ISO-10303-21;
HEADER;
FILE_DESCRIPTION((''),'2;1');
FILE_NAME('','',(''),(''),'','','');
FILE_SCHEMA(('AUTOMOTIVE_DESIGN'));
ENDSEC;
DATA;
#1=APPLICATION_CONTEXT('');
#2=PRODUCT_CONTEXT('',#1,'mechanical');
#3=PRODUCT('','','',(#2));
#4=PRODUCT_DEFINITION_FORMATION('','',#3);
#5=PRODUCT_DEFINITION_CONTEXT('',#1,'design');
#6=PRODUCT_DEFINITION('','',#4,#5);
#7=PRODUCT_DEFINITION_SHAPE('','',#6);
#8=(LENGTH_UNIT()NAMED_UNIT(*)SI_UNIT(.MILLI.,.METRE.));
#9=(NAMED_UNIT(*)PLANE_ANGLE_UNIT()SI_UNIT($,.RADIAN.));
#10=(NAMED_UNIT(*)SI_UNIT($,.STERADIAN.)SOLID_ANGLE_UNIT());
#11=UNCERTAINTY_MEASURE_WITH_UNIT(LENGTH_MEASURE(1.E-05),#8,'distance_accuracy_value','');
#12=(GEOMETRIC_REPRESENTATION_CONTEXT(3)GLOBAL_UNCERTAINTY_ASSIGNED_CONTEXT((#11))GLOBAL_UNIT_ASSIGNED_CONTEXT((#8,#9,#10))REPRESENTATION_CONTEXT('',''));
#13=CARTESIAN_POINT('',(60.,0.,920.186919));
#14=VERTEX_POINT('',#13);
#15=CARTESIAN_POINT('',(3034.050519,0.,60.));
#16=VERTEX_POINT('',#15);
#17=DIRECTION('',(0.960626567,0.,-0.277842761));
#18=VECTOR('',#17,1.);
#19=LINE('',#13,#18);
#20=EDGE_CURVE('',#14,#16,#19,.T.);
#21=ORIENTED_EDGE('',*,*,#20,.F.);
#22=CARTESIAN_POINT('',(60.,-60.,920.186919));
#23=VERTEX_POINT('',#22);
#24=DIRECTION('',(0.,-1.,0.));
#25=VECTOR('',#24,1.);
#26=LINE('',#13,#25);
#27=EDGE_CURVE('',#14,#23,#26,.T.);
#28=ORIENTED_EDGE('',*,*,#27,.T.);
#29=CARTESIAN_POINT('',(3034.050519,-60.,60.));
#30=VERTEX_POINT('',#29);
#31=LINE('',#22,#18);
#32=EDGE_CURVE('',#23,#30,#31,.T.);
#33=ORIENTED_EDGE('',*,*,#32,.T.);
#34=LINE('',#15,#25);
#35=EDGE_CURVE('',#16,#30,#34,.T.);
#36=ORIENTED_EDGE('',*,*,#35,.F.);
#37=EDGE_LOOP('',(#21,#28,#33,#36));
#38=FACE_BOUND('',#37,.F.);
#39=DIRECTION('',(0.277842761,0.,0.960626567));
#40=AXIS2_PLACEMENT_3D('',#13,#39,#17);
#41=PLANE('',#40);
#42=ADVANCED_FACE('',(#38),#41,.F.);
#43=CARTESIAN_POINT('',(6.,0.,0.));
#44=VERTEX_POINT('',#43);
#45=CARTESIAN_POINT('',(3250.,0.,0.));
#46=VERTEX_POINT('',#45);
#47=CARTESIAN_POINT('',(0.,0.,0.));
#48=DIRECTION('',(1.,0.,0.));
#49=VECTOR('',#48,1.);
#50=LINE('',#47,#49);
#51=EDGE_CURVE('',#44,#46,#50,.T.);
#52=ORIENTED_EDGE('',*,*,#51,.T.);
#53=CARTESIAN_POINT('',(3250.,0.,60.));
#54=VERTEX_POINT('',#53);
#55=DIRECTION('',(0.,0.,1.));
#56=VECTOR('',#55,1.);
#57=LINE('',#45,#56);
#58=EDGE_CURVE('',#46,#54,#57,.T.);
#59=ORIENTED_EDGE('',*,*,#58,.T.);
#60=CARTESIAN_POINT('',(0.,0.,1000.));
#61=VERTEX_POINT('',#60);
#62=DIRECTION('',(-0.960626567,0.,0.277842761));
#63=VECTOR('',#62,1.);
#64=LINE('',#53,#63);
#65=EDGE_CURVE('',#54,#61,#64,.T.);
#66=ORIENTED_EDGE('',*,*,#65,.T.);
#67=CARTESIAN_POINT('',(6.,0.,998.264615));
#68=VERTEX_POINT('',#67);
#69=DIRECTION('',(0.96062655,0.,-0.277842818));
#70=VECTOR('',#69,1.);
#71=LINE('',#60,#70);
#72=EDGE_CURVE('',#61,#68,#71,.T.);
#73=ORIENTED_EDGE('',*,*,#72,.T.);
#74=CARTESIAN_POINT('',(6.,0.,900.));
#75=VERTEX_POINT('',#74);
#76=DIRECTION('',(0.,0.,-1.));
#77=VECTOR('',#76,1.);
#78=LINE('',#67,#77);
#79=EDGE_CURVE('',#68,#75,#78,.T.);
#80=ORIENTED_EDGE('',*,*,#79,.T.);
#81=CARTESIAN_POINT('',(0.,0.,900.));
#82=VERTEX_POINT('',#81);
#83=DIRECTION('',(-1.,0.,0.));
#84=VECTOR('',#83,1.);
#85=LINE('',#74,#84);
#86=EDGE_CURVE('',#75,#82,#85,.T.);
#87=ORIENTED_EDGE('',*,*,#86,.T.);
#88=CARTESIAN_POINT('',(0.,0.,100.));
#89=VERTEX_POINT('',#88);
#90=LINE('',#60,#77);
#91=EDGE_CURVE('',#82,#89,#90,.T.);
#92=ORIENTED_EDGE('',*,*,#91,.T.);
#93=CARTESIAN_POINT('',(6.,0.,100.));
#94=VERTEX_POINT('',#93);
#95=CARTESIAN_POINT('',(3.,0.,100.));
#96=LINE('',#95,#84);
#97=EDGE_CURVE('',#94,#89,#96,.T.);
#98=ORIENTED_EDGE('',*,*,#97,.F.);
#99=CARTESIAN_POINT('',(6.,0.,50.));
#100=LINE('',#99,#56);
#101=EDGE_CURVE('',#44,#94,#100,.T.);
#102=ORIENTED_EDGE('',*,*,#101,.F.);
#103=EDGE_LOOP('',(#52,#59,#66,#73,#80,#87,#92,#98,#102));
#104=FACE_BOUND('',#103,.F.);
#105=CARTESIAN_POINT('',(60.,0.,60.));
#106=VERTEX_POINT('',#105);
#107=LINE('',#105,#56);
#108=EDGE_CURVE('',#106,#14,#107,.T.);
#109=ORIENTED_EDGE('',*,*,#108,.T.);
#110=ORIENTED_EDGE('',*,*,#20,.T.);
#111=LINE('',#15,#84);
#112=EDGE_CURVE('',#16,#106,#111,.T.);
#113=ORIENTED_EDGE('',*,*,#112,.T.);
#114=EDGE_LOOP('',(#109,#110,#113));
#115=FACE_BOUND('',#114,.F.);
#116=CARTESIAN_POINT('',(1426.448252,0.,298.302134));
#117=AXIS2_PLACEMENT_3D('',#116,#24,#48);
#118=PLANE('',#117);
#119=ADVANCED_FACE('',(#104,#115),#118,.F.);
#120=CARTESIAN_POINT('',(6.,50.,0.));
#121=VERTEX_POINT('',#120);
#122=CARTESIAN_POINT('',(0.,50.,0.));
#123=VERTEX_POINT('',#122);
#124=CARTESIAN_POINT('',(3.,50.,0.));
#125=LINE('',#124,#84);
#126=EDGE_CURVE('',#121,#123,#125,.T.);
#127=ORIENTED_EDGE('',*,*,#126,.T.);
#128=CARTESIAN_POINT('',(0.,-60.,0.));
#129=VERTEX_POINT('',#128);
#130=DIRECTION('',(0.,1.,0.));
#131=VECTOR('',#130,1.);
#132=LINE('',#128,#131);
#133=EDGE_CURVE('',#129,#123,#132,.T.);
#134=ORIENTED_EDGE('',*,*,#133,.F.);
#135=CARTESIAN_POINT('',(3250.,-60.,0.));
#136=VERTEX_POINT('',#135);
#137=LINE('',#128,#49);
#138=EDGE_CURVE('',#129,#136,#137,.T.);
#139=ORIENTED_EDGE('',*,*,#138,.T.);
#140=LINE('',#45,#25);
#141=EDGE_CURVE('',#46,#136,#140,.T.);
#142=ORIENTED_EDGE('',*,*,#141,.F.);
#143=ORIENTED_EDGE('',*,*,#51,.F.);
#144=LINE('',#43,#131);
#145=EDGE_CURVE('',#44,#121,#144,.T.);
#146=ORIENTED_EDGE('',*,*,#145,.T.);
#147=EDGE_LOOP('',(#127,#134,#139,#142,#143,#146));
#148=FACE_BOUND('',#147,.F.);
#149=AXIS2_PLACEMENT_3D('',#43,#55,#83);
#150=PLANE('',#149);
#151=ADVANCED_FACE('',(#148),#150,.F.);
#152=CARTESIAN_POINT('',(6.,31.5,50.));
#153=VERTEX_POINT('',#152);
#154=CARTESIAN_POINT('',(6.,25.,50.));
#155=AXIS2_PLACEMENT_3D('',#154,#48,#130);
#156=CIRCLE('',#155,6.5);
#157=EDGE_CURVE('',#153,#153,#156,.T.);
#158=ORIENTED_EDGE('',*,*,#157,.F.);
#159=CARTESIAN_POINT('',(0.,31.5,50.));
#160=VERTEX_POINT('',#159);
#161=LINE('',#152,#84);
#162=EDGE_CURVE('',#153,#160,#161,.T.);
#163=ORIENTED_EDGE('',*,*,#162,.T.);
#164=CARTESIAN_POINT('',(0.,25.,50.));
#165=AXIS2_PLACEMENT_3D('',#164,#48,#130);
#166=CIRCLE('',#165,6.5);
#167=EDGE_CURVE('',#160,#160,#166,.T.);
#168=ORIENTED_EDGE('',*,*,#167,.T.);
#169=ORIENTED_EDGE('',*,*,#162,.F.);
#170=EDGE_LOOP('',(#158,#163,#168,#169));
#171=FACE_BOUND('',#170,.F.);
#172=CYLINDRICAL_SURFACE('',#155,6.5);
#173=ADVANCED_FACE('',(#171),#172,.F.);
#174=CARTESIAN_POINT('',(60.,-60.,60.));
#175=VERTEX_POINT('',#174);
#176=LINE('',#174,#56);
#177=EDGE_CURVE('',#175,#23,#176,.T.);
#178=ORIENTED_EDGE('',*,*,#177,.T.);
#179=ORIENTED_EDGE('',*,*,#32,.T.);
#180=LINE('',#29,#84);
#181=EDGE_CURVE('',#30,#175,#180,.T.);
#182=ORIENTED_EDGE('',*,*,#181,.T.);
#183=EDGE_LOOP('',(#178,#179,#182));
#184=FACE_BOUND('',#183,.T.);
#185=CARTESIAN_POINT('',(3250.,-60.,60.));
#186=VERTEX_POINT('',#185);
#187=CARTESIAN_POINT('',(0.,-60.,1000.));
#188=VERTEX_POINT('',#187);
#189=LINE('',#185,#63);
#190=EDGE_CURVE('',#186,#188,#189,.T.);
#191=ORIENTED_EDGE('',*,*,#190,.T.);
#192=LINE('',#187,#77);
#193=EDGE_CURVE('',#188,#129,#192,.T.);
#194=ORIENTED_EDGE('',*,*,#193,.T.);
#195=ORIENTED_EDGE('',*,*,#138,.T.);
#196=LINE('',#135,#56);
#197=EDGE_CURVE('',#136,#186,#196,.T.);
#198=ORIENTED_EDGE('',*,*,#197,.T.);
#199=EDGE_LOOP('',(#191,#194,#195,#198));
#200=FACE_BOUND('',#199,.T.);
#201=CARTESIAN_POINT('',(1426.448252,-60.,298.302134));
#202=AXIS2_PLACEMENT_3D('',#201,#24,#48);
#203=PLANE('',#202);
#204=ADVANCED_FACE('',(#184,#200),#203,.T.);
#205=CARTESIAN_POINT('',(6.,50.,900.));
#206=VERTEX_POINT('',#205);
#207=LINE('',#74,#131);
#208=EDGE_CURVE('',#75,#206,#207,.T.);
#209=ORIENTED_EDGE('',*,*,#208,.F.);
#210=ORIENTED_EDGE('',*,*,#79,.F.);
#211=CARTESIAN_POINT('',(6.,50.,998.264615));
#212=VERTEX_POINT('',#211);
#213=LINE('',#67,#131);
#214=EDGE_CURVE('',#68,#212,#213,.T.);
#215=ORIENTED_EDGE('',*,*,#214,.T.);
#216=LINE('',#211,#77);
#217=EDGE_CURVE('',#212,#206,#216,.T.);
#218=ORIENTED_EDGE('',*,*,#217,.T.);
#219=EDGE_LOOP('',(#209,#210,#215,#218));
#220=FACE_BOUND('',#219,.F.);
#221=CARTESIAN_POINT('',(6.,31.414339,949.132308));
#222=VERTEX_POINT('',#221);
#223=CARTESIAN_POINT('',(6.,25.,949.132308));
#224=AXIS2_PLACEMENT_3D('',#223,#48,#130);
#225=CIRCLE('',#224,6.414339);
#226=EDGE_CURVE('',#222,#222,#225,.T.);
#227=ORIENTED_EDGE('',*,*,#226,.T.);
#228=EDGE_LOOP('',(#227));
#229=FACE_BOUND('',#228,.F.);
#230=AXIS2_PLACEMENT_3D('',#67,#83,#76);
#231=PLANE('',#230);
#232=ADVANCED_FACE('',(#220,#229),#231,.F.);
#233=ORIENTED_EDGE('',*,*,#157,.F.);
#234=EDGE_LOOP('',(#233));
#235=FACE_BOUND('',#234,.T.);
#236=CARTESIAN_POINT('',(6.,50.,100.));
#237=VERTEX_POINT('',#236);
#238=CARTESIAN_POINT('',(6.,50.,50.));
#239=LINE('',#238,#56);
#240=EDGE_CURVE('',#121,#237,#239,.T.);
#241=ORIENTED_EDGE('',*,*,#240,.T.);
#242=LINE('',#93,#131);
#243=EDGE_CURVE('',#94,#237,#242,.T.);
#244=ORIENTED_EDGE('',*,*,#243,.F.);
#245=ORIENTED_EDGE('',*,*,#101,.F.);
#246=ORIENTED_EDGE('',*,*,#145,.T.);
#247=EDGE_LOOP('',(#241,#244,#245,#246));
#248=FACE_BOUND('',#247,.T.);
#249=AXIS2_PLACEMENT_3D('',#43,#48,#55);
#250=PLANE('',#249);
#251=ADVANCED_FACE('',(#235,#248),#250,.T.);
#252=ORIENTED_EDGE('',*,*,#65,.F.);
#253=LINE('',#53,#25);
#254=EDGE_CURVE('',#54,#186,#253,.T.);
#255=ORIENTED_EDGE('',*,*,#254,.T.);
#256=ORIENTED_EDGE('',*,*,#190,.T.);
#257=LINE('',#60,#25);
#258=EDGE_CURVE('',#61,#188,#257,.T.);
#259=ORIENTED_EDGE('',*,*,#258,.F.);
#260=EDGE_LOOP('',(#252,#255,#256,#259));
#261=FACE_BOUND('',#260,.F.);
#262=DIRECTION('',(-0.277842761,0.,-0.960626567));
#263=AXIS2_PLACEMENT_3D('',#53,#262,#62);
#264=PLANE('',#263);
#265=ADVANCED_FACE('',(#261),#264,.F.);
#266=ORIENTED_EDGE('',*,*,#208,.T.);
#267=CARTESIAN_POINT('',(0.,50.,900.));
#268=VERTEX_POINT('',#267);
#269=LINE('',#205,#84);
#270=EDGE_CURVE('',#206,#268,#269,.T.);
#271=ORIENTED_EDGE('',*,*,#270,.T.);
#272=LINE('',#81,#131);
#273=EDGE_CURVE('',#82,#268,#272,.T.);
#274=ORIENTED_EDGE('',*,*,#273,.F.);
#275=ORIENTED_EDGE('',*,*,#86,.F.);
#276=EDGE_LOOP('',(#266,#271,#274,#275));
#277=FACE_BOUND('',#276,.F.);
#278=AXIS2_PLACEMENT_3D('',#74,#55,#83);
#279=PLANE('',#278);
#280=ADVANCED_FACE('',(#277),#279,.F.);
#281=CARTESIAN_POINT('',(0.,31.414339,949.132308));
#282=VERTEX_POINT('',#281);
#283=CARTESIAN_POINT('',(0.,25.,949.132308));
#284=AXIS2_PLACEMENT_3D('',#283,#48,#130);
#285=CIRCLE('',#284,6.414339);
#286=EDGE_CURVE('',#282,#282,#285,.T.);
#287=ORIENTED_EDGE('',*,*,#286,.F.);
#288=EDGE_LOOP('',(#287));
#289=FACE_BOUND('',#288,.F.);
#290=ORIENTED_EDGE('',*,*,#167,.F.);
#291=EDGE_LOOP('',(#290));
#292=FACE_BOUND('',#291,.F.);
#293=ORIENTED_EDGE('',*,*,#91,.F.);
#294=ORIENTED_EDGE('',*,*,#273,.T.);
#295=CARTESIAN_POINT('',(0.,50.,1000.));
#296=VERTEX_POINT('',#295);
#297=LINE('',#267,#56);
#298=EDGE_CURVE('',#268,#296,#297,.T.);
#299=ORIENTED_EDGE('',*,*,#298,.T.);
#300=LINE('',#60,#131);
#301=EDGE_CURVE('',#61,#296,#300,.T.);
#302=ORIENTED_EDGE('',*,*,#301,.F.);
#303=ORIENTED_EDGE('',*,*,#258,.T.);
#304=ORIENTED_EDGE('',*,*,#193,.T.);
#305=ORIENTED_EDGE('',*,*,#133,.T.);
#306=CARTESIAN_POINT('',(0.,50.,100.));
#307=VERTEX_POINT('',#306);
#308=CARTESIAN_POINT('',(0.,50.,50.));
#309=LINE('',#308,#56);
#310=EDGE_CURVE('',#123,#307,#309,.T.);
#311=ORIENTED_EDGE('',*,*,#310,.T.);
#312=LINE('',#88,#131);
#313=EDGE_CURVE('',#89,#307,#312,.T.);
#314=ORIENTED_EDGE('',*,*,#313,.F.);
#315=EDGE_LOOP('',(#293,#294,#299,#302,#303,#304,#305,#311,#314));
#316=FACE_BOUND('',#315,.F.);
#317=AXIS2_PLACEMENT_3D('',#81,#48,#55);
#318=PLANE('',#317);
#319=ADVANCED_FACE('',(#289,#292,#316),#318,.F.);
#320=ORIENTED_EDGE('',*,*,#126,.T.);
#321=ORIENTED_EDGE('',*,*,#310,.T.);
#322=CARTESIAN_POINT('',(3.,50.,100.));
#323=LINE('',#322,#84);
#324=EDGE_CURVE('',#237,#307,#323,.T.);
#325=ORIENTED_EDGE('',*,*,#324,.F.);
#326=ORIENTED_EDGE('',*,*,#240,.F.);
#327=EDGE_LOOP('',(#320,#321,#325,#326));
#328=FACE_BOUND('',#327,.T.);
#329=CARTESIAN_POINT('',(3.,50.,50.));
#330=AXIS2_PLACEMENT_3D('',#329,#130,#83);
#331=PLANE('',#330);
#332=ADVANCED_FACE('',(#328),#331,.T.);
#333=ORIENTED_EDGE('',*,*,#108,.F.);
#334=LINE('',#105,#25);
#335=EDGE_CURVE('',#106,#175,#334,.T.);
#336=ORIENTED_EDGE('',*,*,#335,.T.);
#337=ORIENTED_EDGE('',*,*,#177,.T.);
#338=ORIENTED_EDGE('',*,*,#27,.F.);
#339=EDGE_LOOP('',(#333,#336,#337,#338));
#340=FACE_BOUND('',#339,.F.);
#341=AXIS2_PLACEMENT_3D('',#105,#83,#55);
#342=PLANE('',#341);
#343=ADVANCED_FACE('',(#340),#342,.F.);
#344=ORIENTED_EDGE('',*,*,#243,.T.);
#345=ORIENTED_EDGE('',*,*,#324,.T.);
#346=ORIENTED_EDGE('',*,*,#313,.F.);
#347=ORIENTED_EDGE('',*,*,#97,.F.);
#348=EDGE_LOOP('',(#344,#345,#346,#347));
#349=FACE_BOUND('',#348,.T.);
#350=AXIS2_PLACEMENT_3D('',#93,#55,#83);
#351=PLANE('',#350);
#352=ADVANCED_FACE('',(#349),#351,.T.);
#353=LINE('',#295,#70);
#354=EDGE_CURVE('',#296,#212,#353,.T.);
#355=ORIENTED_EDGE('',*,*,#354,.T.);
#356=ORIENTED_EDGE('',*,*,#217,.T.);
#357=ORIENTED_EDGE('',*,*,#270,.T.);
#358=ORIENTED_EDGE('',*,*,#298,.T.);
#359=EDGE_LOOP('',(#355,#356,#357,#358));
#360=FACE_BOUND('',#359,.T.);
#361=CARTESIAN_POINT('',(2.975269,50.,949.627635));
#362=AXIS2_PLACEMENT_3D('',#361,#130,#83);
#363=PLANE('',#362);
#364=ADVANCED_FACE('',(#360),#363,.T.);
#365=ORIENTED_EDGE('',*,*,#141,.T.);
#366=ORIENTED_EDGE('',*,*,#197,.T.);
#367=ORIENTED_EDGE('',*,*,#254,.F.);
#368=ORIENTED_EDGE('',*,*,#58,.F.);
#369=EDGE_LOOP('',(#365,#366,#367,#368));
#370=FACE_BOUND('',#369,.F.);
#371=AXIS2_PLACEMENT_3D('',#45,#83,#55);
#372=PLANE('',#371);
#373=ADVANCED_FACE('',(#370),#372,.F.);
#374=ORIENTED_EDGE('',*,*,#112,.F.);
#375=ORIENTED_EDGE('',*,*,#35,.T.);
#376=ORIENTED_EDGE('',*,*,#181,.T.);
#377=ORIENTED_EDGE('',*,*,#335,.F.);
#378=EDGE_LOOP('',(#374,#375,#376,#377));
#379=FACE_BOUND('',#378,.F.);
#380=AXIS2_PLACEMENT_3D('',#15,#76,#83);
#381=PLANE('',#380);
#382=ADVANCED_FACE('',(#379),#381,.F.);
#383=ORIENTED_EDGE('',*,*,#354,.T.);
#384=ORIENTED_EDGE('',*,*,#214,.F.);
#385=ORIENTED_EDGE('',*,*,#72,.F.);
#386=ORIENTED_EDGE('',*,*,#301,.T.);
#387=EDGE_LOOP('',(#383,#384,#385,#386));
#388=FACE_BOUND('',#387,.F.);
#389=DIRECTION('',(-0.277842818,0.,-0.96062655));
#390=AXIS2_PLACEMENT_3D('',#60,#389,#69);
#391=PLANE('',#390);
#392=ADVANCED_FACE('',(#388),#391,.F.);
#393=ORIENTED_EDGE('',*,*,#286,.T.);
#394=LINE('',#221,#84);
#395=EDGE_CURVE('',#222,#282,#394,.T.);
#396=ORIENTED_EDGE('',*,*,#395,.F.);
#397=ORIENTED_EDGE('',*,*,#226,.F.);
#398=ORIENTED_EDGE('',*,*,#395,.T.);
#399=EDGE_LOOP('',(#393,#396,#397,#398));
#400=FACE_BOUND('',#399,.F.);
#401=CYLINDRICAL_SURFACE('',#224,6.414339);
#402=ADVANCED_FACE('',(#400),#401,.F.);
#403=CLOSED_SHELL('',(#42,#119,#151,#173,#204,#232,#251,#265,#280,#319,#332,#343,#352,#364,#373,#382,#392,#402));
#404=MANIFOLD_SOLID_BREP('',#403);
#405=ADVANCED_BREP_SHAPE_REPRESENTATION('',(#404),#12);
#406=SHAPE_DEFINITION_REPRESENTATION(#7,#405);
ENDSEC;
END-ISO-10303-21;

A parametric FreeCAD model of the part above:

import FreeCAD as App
import Part
import Sketcher
from FreeCAD import Vector

doc = App.newDocument("Part")
body = doc.addObject("PartDesign::Body", "Body")

# Sketch on XZ plane
sketch1 = body.newObject("Sketcher::SketchObject", "Sketch")
sketch1.AttachmentSupport = (doc.getObject("XZ_Plane"), [""])
sketch1.MapMode = "FlatFace"
sketch1.addGeometry(Part.LineSegment(Vector(0, 1000, 0), Vector(0, 0, 0)), False)
sketch1.addGeometry(Part.LineSegment(Vector(0, 0, 0), Vector(3250, 0, 0)), False)
sketch1.addGeometry(Part.LineSegment(Vector(3250, 0, 0), Vector(3250, 60, 0)), False)
sketch1.addGeometry(Part.LineSegment(Vector(3250, 60, 0), Vector(0, 1000, 0)), False)
sketch1.addGeometry(Part.LineSegment(Vector(60, 920, 0), Vector(3034, 60, 0)), False)
sketch1.addGeometry(Part.LineSegment(Vector(3034, 60, 0), Vector(60, 60, 0)), False)
sketch1.addGeometry(Part.LineSegment(Vector(60, 60, 0), Vector(60, 920, 0)), False)
sketch1.addConstraint(Sketcher.Constraint("Coincident", 0, 2, 1, 1))
sketch1.addConstraint(Sketcher.Constraint("Coincident", 1, 2, 2, 1))
sketch1.addConstraint(Sketcher.Constraint("Coincident", 2, 2, 3, 1))
sketch1.addConstraint(Sketcher.Constraint("Coincident", 3, 2, 0, 1))
sketch1.addConstraint(Sketcher.Constraint("Coincident", 4, 2, 5, 1))
sketch1.addConstraint(Sketcher.Constraint("Coincident", 5, 2, 6, 1))
sketch1.addConstraint(Sketcher.Constraint("Coincident", 6, 2, 4, 1))
sketch1.addConstraint(Sketcher.Constraint("Vertical", 0))
sketch1.addConstraint(Sketcher.Constraint("Horizontal", 1))
sketch1.addConstraint(Sketcher.Constraint("Vertical", 2))
sketch1.addConstraint(Sketcher.Constraint("Horizontal", 5))
sketch1.addConstraint(Sketcher.Constraint("Vertical", 6))
sketch1.addConstraint(Sketcher.Constraint("Coincident", 0, 2, -1, 1))
sketch1.addConstraint(Sketcher.Constraint("Parallel", 3, 4))
sketch1.addConstraint(Sketcher.Constraint("Horizontal", 2, 2, 4, 2))
sketch1.addConstraint(Sketcher.Constraint("DistanceX", 1, 1, 1, 2, 3250.0))
sketch1.addConstraint(Sketcher.Constraint("DistanceY", 0, 2, 0, 1, 1000.0))
sketch1.addConstraint(Sketcher.Constraint("DistanceY", 2, 1, 2, 2, 60.0))
sketch1.addConstraint(Sketcher.Constraint("DistanceX", -1, 1, 5, 2, 60.0))
sketch1.addConstraint(Sketcher.Constraint("DistanceX", 5, 2, 5, 1, 2974.050519))
pad1 = body.newObject("PartDesign::Pad", "Pad")
pad1.Profile = sketch1
pad1.Length = 60

# Sketch on XZ plane
sketch2 = body.newObject("Sketcher::SketchObject", "Sketch001")
sketch2.AttachmentSupport = (doc.getObject("XZ_Plane"), [""])
sketch2.MapMode = "FlatFace"
sketch2.addGeometry(Part.LineSegment(Vector(6, 100, 0), Vector(6, 0, 0)), False)
sketch2.addGeometry(Part.LineSegment(Vector(6, 0, 0), Vector(0, 0, 0)), False)
sketch2.addGeometry(Part.LineSegment(Vector(0, 0, 0), Vector(0, 100, 0)), False)
sketch2.addGeometry(Part.LineSegment(Vector(0, 100, 0), Vector(6, 100, 0)), False)
sketch2.addConstraint(Sketcher.Constraint("Coincident", 0, 2, 1, 1))
sketch2.addConstraint(Sketcher.Constraint("Coincident", 1, 2, 2, 1))
sketch2.addConstraint(Sketcher.Constraint("Coincident", 2, 2, 3, 1))
sketch2.addConstraint(Sketcher.Constraint("Coincident", 3, 2, 0, 1))
sketch2.addConstraint(Sketcher.Constraint("Vertical", 0))
sketch2.addConstraint(Sketcher.Constraint("Horizontal", 1))
sketch2.addConstraint(Sketcher.Constraint("Vertical", 2))
sketch2.addConstraint(Sketcher.Constraint("Horizontal", 3))
sketch2.addConstraint(Sketcher.Constraint("Coincident", 1, 2, -1, 1))
sketch2.addConstraint(Sketcher.Constraint("DistanceX", 1, 2, 1, 1, 6.0))
sketch2.addConstraint(Sketcher.Constraint("DistanceY", 0, 2, 0, 1, 100.0))
pad2 = body.newObject("PartDesign::Pad", "Pad001")
pad2.Profile = sketch2
pad2.Length = 50
pad2.Reversed = True

# Sketch on XZ plane
sketch3 = body.newObject("Sketcher::SketchObject", "Sketch002")
sketch3.AttachmentSupport = (doc.getObject("XZ_Plane"), [""])
sketch3.MapMode = "FlatFace"
sketch3.addGeometry(Part.LineSegment(Vector(0, 900, 0), Vector(0, 1000, 0)), False)
sketch3.addGeometry(Part.LineSegment(Vector(0, 1000, 0), Vector(6, 998, 0)), False)
sketch3.addGeometry(Part.LineSegment(Vector(6, 998, 0), Vector(6, 900, 0)), False)
sketch3.addGeometry(Part.LineSegment(Vector(6, 900, 0), Vector(0, 900, 0)), False)
sketch3.addConstraint(Sketcher.Constraint("Coincident", 0, 2, 1, 1))
sketch3.addConstraint(Sketcher.Constraint("Coincident", 1, 2, 2, 1))
sketch3.addConstraint(Sketcher.Constraint("Coincident", 2, 2, 3, 1))
sketch3.addConstraint(Sketcher.Constraint("Coincident", 3, 2, 0, 1))
sketch3.addConstraint(Sketcher.Constraint("Vertical", 0))
sketch3.addConstraint(Sketcher.Constraint("Vertical", 2))
sketch3.addConstraint(Sketcher.Constraint("Horizontal", 3))
sketch3.addConstraint(Sketcher.Constraint("PointOnObject", 0, 2, -2))
sketch3.addConstraint(Sketcher.Constraint("DistanceX", 3, 2, 3, 1, 6.0))
sketch3.addConstraint(Sketcher.Constraint("DistanceY", 0, 1, 0, 2, 100.0))
sketch3.addConstraint(Sketcher.Constraint("DistanceY", -1, 1, 0, 2, 1000.0))
sketch3.addConstraint(Sketcher.Constraint("DistanceY", 2, 2, 2, 1, 98.264615))
pad3 = body.newObject("PartDesign::Pad", "Pad002")
pad3.Profile = sketch3
pad3.Length = 50
pad3.Reversed = True

# Sketch on YZ plane
sketch4 = body.newObject("Sketcher::SketchObject", "Sketch003")
sketch4.AttachmentSupport = (doc.getObject("YZ_Plane"), [""])
sketch4.MapMode = "FlatFace"
sketch4.AttachmentOffset = App.Placement(Vector(0, 0, 6), App.Rotation())
sketch4.addGeometry(Part.Circle(Vector(25, 949, 0), Vector(0, 0, 1), 6), False)
sketch4.addConstraint(Sketcher.Constraint("DistanceX", -1, 1, 0, 3, 25.0))
sketch4.addConstraint(Sketcher.Constraint("Diameter", 0, 12.828678))
sketch4.addConstraint(Sketcher.Constraint("DistanceY", -1, 1, 0, 3, 949.132308))
pocket1 = body.newObject("PartDesign::Pocket", "Pocket")
pocket1.Profile = sketch4
pocket1.Length = 25

# Sketch on YZ plane
sketch5 = body.newObject("Sketcher::SketchObject", "Sketch004")
sketch5.AttachmentSupport = (doc.getObject("YZ_Plane"), [""])
sketch5.MapMode = "FlatFace"
sketch5.AttachmentOffset = App.Placement(Vector(0, 0, 6), App.Rotation())
sketch5.addGeometry(Part.Circle(Vector(25, 50, 0), Vector(0, 0, 1), 6), False)
sketch5.addConstraint(Sketcher.Constraint("Diameter", 0, 13.0))
sketch5.addConstraint(Sketcher.Constraint("DistanceX", -1, 1, 0, 3, 25.0))
sketch5.addConstraint(Sketcher.Constraint("DistanceY", -1, 1, 0, 3, 50.0))
pocket2 = body.newObject("PartDesign::Pocket", "Pocket001")
pocket2.Profile = sketch5
pocket2.Length = 25

doc.recompute()
